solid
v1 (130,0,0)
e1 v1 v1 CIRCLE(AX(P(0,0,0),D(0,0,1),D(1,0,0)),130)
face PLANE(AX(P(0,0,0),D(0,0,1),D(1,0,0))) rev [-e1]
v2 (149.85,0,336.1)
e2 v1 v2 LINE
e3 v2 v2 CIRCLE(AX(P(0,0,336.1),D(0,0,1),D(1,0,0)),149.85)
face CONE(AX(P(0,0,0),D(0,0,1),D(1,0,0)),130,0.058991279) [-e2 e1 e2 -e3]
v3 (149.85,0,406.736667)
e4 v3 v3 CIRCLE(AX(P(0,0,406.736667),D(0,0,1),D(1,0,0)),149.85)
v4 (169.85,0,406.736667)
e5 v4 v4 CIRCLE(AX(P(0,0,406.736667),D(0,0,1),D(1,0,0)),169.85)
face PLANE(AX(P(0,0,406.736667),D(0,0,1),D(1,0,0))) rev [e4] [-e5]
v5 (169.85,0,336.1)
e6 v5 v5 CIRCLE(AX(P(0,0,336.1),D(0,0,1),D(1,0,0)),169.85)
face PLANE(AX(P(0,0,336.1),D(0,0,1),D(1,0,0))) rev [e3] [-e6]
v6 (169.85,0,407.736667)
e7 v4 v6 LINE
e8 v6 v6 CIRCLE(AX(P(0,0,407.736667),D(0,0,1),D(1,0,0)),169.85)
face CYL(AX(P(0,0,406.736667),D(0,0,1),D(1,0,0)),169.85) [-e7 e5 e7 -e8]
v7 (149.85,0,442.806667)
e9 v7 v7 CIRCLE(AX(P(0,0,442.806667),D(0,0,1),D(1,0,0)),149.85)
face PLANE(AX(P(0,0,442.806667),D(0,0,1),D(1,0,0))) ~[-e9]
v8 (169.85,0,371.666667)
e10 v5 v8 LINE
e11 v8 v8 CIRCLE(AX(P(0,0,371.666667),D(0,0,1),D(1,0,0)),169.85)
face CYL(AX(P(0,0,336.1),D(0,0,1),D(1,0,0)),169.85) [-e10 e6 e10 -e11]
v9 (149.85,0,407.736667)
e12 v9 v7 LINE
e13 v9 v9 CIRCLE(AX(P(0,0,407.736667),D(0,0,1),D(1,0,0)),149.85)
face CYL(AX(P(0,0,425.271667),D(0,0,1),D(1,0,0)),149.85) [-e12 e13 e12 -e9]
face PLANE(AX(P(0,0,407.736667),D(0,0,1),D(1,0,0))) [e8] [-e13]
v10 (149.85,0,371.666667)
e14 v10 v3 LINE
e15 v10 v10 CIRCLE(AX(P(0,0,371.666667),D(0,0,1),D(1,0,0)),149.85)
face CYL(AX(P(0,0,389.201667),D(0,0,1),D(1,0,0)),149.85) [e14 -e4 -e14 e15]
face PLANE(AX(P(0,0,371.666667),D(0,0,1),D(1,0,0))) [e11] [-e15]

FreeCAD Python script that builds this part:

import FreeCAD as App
import Part
import Sketcher

V = App.Vector


def add_polygon(sketch, points):
    """Adds a closed chain of lines whose ends are joined by coincident constraints."""
    first, n = sketch.GeometryCount, len(points)
    for a, b in zip(points, points[1:] + points[:1]):
        sketch.addGeometry(Part.LineSegment(App.Vector(*a, 0), App.Vector(*b, 0)), False)
    for i in range(n):
        sketch.addConstraint(Sketcher.Constraint("Coincident", first + i, 2, first + (i + 1) % n, 1))

doc = App.newDocument("Part")
body = doc.addObject("PartDesign::Body", "Body")

# Sketch on XZ plane
sketch1 = doc.addObject("Sketcher::SketchObject", "Sketch")
body.addObject(sketch1)
sketch1.AttachmentSupport = (doc.XZ_Plane, [""])
sketch1.MapMode = "FlatFace"
add_polygon(sketch1, [(0, 0), (130, 0), (149.85, 336.1), (169.85, 336.1), (169.85, 371.666667), (149.85, 371.666667), (149.85, 406.736667), (169.85, 406.736667), (169.85, 407.736667), (149.85, 407.736667), (149.85, 442.806667), (0, 442.806667)])  # lines 0-11
sketch1.addConstraint([
    Sketcher.Constraint("Horizontal", 0),
    Sketcher.Constraint("Horizontal", 2),
    Sketcher.Constraint("Vertical", 3),
    Sketcher.Constraint("Horizontal", 4),
    Sketcher.Constraint("Vertical", 5),
    Sketcher.Constraint("Horizontal", 6),
    Sketcher.Constraint("Vertical", 7),
    Sketcher.Constraint("Horizontal", 8),
    Sketcher.Constraint("Vertical", 9),
    Sketcher.Constraint("Horizontal", 10),
    Sketcher.Constraint("Vertical", 11),
    Sketcher.Constraint("Coincident", 11, 2, -1, 1),
    Sketcher.Constraint("Vertical", 1, 2, 4, 2),
    Sketcher.Constraint("Vertical", 3, 2, 6, 2),
    Sketcher.Constraint("Vertical", 5, 2, 8, 2),
    Sketcher.Constraint("Equal", 5, 9),
    Sketcher.Constraint("DistanceX", 0, 1, 0, 2, 130.0),
    Sketcher.Constraint("DistanceX", 2, 1, 2, 2, 20.0),
    Sketcher.Constraint("DistanceY", 7, 1, 7, 2, 1.0),
    Sketcher.Constraint("DistanceX", 10, 2, 10, 1, 149.85),
    Sketcher.Constraint("DistanceY", 5, 1, 5, 2, 35.07),
    Sketcher.Constraint("DistanceY", -1, 1, 1, 2, 336.1),
    Sketcher.Constraint("DistanceY", 3, 1, 3, 2, 35.566667),
])
revolution = doc.addObject("PartDesign::Revolution", "Revolution")
body.addObject(revolution)
revolution.Profile = sketch1
revolution.ReferenceAxis = (sketch1, ["V_Axis"])
revolution.Angle = 360

doc.recompute()
